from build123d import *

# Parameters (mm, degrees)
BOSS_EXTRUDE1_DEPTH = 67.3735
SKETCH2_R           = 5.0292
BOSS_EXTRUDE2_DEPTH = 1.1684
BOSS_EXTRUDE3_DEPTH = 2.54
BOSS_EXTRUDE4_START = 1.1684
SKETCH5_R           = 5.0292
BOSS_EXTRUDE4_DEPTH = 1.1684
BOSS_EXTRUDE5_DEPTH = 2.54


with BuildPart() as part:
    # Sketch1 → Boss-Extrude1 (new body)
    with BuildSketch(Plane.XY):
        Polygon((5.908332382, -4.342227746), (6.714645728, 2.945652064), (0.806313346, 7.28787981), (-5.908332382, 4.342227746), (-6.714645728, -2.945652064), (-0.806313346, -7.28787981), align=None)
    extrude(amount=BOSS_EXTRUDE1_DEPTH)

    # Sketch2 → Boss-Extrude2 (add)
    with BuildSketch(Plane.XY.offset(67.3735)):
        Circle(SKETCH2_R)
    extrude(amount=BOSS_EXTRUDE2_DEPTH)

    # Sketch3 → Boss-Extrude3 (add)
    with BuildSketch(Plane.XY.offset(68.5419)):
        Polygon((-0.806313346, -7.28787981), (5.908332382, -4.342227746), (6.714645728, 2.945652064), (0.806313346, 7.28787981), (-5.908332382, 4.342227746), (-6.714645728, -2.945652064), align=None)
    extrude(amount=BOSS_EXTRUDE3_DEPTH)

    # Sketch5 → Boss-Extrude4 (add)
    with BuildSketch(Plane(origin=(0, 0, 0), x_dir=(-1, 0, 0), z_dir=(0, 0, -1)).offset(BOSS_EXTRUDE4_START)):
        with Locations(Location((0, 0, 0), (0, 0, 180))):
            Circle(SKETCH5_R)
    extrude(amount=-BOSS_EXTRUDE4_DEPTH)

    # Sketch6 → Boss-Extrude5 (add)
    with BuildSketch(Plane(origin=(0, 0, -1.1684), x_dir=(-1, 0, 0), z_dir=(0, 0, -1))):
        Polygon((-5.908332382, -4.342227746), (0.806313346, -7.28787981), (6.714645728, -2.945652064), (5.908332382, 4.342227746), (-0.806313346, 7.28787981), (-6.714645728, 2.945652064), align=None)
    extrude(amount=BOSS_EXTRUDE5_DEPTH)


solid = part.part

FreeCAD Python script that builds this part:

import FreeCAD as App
import Part
import Sketcher

V = App.Vector
Q = App.Units.Quantity


def add_polygon(sketch, points):
    """Adds a closed chain of lines whose ends are joined by coincident constraints."""
    first, n = sketch.GeometryCount, len(points)
    for a, b in zip(points, points[1:] + points[:1]):
        sketch.addGeometry(Part.LineSegment(App.Vector(*a, 0), App.Vector(*b, 0)), False)
    for i in range(n):
        sketch.addConstraint(Sketcher.Constraint("Coincident", first + i, 2, first + (i + 1) % n, 1))

doc = App.newDocument("Part")
body = doc.addObject("PartDesign::Body", "Body")

sketch1 = doc.addObject("Sketcher::SketchObject", "Sketch")
body.addObject(sketch1)
sketch1.AttachmentSupport = (doc.XY_Plane, [""])
sketch1.MapMode = "FlatFace"
add_polygon(sketch1, [(5.908332, -4.342228), (6.714646, 2.945652), (0.806313, 7.28788), (-5.908332, 4.342228), (-6.714646, -2.945652), (-0.806313, -7.28788)])
sketch1.addConstraint([
    Sketcher.Constraint("Symmetric", 0, 2, 3, 2, -1, 1),
    Sketcher.Constraint("Symmetric", 1, 2, 4, 2, -1, 1),
    Sketcher.Constraint("Symmetric", 2, 2, 5, 2, -1, 1),
    Sketcher.Constraint("Equal", 0, 1),
    Sketcher.Constraint("Equal", 1, 2),
    Sketcher.Constraint("Distance", 0, 7.332348),
    Sketcher.Constraint("DistanceY", -1, 1, 1, 2, 7.28788),
    Sketcher.Constraint("DistanceX", 2, 2, 0, 2, 12.622978),
    Sketcher.Constraint("DistanceY", 3, 2, 2, 2, 7.28788),
])
pad1 = doc.addObject("PartDesign::Pad", "Pad")
body.addObject(pad1)
pad1.Profile = sketch1
pad1.Length = Q("2.6525 in")

sketch2 = doc.addObject("Sketcher::SketchObject", "Sketch001")
body.addObject(sketch2)
sketch2.AttachmentSupport = (doc.XY_Plane, [""])
sketch2.MapMode = "FlatFace"
sketch2.AttachmentOffset = App.Placement(V(0, 0, 2.6525 * 25.4), App.Rotation())
sketch2.addGeometry(Part.Circle(V(0, 0, 0), V(0, 0, 1), 5.0292), False)
sketch2.addConstraint([
    Sketcher.Constraint("Coincident", 0, 3, -1, 1),
    Sketcher.Constraint("Diameter", 0, Q("0.396 in")),
])
pad2 = doc.addObject("PartDesign::Pad", "Pad001")
body.addObject(pad2)
pad2.Profile = sketch2
pad2.Length = Q("0.046 in")

sketch3 = doc.addObject("Sketcher::SketchObject", "Sketch002")
body.addObject(sketch3)
sketch3.AttachmentSupport = (doc.XY_Plane, [""])
sketch3.MapMode = "FlatFace"
sketch3.AttachmentOffset = App.Placement(V(0, 0, 2.6985 * 25.4), App.Rotation())
add_polygon(sketch3, [(-0.806313, -7.28788), (5.908332, -4.342228), (6.714646, 2.945652), (0.806313, 7.28788), (-5.908332, 4.342228), (-6.714646, -2.945652)])
sketch3.addConstraint([
    Sketcher.Constraint("Symmetric", 0, 2, 3, 2, -1, 1),
    Sketcher.Constraint("Symmetric", 1, 2, 4, 2, -1, 1),
    Sketcher.Constraint("Symmetric", 2, 2, 5, 2, -1, 1),
    Sketcher.Constraint("Equal", 0, 1),
    Sketcher.Constraint("Equal", 1, 2),
    Sketcher.Constraint("Distance", 0, 7.332348),
    Sketcher.Constraint("DistanceY", -1, 1, 2, 2, 7.28788),
    Sketcher.Constraint("DistanceY", 0, 2, 1, 2, 7.28788),
    Sketcher.Constraint("DistanceX", 2, 2, 0, 2, 5.102019),
])
pad3 = doc.addObject("PartDesign::Pad", "Pad002")
body.addObject(pad3)
pad3.Profile = sketch3
pad3.Length = Q("0.1 in")

sketch4 = doc.addObject("Sketcher::SketchObject", "Sketch003")
body.addObject(sketch4)
sketch4.AttachmentSupport = (doc.XY_Plane, [""])
sketch4.MapMode = "FlatFace"
sketch4.AttachmentOffset = App.Placement(V(0, 0, -0.046 * 25.4), App.Rotation())
sketch4.addGeometry(Part.Circle(V(0, 0, 0), V(0, 0, 1), 5.0292), False)
sketch4.addConstraint([
    Sketcher.Constraint("Coincident", 0, 3, -1, 1),
    Sketcher.Constraint("Diameter", 0, Q("0.396 in")),
])
pad4 = doc.addObject("PartDesign::Pad", "Pad003")
body.addObject(pad4)
pad4.Profile = sketch4
pad4.Length = Q("0.046 in")

sketch5 = doc.addObject("Sketcher::SketchObject", "Sketch004")
body.addObject(sketch5)
sketch5.AttachmentSupport = (doc.XY_Plane, [""])
sketch5.MapMode = "FlatFace"
sketch5.AttachmentOffset = App.Placement(V(0, 0, -0.046 * 25.4), App.Rotation())
add_polygon(sketch5, [(5.908332, -4.342228), (-0.806313, -7.28788), (-6.714646, -2.945652), (-5.908332, 4.342228), (0.806313, 7.28788), (6.714646, 2.945652)])
sketch5.addConstraint([
    Sketcher.Constraint("Symmetric", 0, 2, 3, 2, -1, 1),
    Sketcher.Constraint("Symmetric", 1, 2, 4, 2, -1, 1),
    Sketcher.Constraint("Symmetric", 2, 2, 5, 2, -1, 1),
    Sketcher.Constraint("Equal", 0, 1),
    Sketcher.Constraint("Equal", 1, 2),
    Sketcher.Constraint("Distance", 0, 7.332348),
    Sketcher.Constraint("DistanceY", 0, 2, -1, 1, 7.28788),
    Sketcher.Constraint("DistanceY", 1, 2, 2, 2, 7.28788),
    Sketcher.Constraint("DistanceX", 2, 2, 0, 2, 5.102019),
])
pad5 = doc.addObject("PartDesign::Pad", "Pad004")
body.addObject(pad5)
pad5.Profile = sketch5
pad5.Length = Q("0.1 in")
pad5.Reversed = True

doc.recompute()
